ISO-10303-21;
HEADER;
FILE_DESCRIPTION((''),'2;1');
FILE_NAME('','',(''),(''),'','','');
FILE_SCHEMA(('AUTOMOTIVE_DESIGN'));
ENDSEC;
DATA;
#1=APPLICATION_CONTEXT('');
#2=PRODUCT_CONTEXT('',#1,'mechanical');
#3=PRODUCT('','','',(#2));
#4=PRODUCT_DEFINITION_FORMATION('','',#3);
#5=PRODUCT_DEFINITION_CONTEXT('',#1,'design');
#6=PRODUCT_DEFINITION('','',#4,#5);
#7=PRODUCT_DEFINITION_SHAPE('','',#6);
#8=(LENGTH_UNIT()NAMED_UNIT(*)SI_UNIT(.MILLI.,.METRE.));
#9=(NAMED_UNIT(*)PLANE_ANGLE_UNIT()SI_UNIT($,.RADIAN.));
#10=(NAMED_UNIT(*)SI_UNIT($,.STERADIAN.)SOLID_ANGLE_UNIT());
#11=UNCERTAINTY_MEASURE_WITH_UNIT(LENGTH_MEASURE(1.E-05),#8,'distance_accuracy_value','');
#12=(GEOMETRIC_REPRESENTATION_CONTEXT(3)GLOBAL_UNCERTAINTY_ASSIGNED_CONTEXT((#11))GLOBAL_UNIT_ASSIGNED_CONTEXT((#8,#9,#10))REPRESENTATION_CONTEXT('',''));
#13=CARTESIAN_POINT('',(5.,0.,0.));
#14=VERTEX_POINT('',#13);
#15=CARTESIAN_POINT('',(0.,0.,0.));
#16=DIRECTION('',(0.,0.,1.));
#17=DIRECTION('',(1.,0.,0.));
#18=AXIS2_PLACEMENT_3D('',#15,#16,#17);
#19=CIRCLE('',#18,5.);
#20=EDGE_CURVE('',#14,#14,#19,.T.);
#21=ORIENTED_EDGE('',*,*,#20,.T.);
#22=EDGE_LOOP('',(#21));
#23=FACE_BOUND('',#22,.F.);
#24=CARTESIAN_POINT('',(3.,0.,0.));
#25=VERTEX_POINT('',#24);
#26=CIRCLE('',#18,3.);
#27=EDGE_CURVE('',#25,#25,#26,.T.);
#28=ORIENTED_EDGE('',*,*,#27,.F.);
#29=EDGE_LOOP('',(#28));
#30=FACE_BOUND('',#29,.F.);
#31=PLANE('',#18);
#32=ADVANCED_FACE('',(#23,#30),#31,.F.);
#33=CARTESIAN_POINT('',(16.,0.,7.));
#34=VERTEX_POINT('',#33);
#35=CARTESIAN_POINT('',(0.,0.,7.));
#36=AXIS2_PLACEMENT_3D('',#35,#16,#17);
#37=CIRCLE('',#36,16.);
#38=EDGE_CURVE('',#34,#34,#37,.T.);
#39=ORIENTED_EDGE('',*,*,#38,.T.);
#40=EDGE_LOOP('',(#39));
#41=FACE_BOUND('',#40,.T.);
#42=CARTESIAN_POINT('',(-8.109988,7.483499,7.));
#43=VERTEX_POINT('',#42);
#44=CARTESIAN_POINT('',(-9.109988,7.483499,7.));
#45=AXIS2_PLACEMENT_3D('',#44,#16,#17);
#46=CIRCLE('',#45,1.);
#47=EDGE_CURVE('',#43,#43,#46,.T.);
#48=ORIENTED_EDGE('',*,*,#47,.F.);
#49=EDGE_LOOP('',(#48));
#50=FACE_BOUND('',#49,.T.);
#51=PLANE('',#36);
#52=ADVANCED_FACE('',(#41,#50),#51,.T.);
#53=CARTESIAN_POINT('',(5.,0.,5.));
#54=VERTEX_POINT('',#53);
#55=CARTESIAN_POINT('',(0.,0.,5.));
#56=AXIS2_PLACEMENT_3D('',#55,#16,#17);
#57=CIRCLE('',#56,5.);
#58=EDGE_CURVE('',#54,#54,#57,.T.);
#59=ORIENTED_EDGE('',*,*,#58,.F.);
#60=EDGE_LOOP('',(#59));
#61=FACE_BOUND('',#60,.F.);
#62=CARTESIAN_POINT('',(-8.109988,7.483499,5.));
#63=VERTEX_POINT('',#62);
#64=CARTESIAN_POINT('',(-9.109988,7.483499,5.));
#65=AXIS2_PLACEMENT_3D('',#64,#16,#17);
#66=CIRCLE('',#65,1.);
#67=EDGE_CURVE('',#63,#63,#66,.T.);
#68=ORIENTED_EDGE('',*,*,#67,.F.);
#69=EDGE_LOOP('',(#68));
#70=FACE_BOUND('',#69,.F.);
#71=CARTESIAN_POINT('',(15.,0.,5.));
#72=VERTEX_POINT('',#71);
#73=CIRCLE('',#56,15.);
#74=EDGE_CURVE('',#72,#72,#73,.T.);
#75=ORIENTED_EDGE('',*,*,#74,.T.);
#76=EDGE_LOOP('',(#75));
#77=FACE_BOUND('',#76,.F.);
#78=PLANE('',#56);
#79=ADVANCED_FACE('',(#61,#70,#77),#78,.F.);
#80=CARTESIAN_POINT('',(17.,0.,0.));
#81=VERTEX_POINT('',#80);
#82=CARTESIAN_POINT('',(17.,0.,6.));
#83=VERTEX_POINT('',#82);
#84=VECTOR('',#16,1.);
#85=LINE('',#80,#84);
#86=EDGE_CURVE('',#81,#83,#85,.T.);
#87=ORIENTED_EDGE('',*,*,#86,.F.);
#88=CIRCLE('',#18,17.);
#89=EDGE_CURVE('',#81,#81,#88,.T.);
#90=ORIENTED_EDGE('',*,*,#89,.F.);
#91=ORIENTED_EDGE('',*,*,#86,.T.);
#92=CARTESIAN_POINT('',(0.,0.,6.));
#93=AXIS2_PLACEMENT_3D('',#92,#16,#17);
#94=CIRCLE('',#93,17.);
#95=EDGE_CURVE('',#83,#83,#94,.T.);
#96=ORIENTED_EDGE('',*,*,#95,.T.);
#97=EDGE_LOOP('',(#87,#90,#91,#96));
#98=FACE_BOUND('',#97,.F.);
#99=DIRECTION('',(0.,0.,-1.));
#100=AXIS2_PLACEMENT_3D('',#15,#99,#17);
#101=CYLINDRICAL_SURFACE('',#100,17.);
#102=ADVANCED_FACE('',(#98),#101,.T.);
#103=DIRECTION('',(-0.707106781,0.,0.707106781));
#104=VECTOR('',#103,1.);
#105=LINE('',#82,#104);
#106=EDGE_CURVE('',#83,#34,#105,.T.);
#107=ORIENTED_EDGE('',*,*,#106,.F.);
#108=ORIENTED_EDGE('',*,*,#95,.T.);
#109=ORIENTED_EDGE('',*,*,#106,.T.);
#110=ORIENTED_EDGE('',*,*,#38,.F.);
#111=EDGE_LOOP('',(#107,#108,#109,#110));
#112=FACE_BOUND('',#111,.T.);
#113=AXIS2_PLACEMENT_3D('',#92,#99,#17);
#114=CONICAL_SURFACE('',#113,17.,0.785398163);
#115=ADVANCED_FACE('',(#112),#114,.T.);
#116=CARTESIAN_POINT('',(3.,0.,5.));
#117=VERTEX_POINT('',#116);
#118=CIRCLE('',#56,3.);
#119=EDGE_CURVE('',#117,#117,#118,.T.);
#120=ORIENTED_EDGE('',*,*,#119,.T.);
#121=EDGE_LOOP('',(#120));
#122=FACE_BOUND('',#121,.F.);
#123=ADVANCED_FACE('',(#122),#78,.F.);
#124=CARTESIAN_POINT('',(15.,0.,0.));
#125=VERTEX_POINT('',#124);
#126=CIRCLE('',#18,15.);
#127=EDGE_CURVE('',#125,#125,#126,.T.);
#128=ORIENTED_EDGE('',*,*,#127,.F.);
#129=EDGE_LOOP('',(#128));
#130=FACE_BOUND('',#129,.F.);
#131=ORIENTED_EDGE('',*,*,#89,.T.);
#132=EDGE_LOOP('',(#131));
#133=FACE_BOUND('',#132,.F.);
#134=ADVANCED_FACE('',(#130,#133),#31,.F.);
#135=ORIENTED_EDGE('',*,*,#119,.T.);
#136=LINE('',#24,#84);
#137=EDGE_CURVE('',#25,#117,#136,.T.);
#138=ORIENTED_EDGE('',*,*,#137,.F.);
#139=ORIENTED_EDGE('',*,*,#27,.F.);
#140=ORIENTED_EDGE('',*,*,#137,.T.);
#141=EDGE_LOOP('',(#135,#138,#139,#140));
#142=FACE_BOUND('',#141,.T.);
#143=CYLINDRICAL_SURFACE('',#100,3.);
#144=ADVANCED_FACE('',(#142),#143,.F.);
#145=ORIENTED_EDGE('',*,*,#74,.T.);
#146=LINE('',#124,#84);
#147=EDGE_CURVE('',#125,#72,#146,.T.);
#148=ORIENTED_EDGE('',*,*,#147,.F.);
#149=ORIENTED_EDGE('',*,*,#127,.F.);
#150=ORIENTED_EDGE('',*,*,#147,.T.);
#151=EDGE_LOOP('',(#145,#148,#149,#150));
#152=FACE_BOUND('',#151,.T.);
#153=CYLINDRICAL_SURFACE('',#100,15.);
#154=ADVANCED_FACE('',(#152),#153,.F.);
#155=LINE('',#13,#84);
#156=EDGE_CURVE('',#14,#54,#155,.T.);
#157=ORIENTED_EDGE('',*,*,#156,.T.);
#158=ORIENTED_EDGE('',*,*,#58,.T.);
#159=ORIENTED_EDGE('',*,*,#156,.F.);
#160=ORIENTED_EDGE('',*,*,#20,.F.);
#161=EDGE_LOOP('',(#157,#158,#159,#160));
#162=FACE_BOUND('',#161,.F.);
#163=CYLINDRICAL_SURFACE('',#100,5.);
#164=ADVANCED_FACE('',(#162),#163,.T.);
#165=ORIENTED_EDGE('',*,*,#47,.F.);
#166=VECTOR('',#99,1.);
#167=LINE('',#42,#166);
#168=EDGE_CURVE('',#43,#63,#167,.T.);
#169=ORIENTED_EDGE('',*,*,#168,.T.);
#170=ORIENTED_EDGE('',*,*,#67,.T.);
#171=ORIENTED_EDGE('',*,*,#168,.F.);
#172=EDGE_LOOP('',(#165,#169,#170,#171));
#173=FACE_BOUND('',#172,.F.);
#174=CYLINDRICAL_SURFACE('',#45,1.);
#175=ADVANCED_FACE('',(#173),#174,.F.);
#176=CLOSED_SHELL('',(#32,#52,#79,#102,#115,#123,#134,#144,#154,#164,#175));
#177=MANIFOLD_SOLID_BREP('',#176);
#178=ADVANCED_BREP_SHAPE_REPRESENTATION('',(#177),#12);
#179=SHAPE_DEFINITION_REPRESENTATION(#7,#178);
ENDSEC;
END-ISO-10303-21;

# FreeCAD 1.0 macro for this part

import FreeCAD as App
import Part
import Sketcher


def edges_at(feature, points):
    """Names of the edges that pass closest to the given points."""
    edges = feature.Shape.Edges
    near = lambda p: min(range(len(edges)), key=lambda i: edges[i].distToShape(Part.Vertex(*p))[0])
    return sorted({f"Edge{near(p) + 1}" for p in points})

doc = App.newDocument("Part")
params = doc.addObject("Spreadsheet::Sheet", "Params")
for row, (alias, value) in enumerate([
    ("sketch1_diameter", "34 mm"),
    ("pad1_length", "7 mm"),
    ("sketch2_diameter", "30 mm"),
    ("sketch2_diameter2", "10 mm"),
    ("pocket1_length", "5 mm"),
    ("sketch3_diameter", "6 mm"),
    ("pocket2_length", "5 mm"),
    ("sketch4_diameter", "2 mm"),
    ("pocket3_length", "5 mm"),
    ("chamfer_size", "1 mm"),
], start=1):
    params.set(f"A{row}", alias)
    params.set(f"B{row}", "=" + value)
    params.setAlias(f"B{row}", alias)

body = doc.addObject("PartDesign::Body", "Body")

# Sketch on XY plane
sketch1 = body.newObject("Sketcher::SketchObject", "Sketch")
sketch1.AttachmentSupport = (doc.getObject("XY_Plane"), [""])
sketch1.MapMode = "FlatFace"
sketch1.addGeometry(Part.Circle(App.Vector(0, 0, 0), App.Vector(0, 0, 1), 17), False)
sketch1.addConstraint([
    Sketcher.Constraint("Coincident", 0, 3, -1, 1),
    Sketcher.Constraint("Diameter", 0, 34.0),
])
sketch1.setExpression("Constraints[1]", "Params.sketch1_diameter")
pad1 = body.newObject("PartDesign::Pad", "Pad")
pad1.Profile = sketch1
pad1.setExpression("Length", "Params.pad1_length")

# Sketch on XY plane
sketch2 = body.newObject("Sketcher::SketchObject", "Sketch001")
sketch2.AttachmentSupport = (doc.getObject("XY_Plane"), [""])
sketch2.MapMode = "FlatFace"
sketch2.addGeometry([
    Part.Circle(App.Vector(0, 0, 0), App.Vector(0, 0, 1), 15),
    Part.Circle(App.Vector(0, 0, 0), App.Vector(0, 0, 1), 5),
], False)
sketch2.addConstraint([
    Sketcher.Constraint("Coincident", 0, 3, -1, 1),
    Sketcher.Constraint("Coincident", 1, 3, -1, 1),
    Sketcher.Constraint("Diameter", 0, 30.0),
    Sketcher.Constraint("Diameter", 1, 10.0),
])
sketch2.setExpression("Constraints[2]", "Params.sketch2_diameter")
sketch2.setExpression("Constraints[3]", "Params.sketch2_diameter2")
pocket1 = body.newObject("PartDesign::Pocket", "Pocket")
pocket1.Profile = sketch2
pocket1.setExpression("Length", "Params.pocket1_length")
pocket1.Reversed = True

# Sketch on XY plane
sketch3 = body.newObject("Sketcher::SketchObject", "Sketch002")
sketch3.AttachmentSupport = (doc.getObject("XY_Plane"), [""])
sketch3.MapMode = "FlatFace"
sketch3.addGeometry(Part.Circle(App.Vector(0, 0, 0), App.Vector(0, 0, 1), 3), False)
sketch3.addConstraint([
    Sketcher.Constraint("Coincident", 0, 3, -1, 1),
    Sketcher.Constraint("Diameter", 0, 6.0),
])
sketch3.setExpression("Constraints[1]", "Params.sketch3_diameter")
pocket2 = body.newObject("PartDesign::Pocket", "Pocket001")
pocket2.Profile = sketch3
pocket2.setExpression("Length", "Params.pocket2_length")
pocket2.Reversed = True

# Sketch on XY plane
sketch4 = body.newObject("Sketcher::SketchObject", "Sketch003")
sketch4.AttachmentSupport = (doc.getObject("XY_Plane"), [""])
sketch4.MapMode = "FlatFace"
sketch4.AttachmentOffset = App.Placement(App.Vector(0, 0, 7), App.Rotation())
sketch4.addGeometry(Part.Circle(App.Vector(-9.1, 7.5, 0), App.Vector(0, 0, 1), 1), False)
sketch4.addConstraint([
    Sketcher.Constraint("Diameter", 0, 2.0),
    Sketcher.Constraint("DistanceY", -1, 1, 0, 3, 7.483499),
    Sketcher.Constraint("DistanceX", 0, 3, -1, 1, 9.109988),
])
sketch4.setExpression("Constraints[0]", "Params.sketch4_diameter")
pocket3 = body.newObject("PartDesign::Pocket", "Pocket002")
pocket3.Profile = sketch4
pocket3.setExpression("Length", "Params.pocket3_length")
doc.recompute()

chamfer = body.newObject("PartDesign::Chamfer", "Chamfer")
chamfer.Base = (pocket3, edges_at(pocket3, [(-17, 0, 7)]))
chamfer.setExpression("Size", "Params.chamfer_size")

doc.recompute()
